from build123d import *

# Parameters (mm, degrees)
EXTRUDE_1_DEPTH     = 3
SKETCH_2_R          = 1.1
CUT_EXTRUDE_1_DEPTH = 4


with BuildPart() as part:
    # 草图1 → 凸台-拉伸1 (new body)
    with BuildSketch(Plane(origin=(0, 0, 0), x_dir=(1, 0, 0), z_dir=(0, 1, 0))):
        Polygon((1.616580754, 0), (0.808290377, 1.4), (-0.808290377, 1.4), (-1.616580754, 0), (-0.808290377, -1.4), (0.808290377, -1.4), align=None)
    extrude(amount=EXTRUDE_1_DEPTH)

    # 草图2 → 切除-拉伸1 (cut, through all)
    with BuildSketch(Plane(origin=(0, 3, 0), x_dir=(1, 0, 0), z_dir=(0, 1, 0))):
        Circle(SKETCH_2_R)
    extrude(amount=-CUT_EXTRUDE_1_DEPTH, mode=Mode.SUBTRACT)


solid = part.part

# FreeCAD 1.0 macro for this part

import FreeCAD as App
import Part
import Sketcher

V = App.Vector
Q = App.Units.Quantity


def add_polygon(sketch, points):
    """Adds a closed chain of lines whose ends are joined by coincident constraints."""
    first, n = sketch.GeometryCount, len(points)
    for a, b in zip(points, points[1:] + points[:1]):
        sketch.addGeometry(Part.LineSegment(App.Vector(*a, 0), App.Vector(*b, 0)), False)
    for i in range(n):
        sketch.addConstraint(Sketcher.Constraint("Coincident", first + i, 2, first + (i + 1) % n, 1))

doc = App.newDocument("Part")
body = doc.addObject("PartDesign::Body", "Body")

# Sketch on XZ plane
sketch1 = body.newObject("Sketcher::SketchObject", "Sketch")
sketch1.AttachmentSupport = (doc.getObject("XZ_Plane"), [""])
sketch1.MapMode = "FlatFace"
add_polygon(sketch1, [(1.6, 0), (0.8, -1.4), (-0.8, -1.4), (-1.6, 0), (-0.8, 1.4), (0.8, 1.4)])  # lines 0-5
sketch1.addConstraint([
    Sketcher.Constraint("Horizontal", 1),
    Sketcher.Constraint("Horizontal", 4),
    Sketcher.Constraint("Symmetric", 0, 2, 3, 2, -1, 1),
    Sketcher.Constraint("Symmetric", 2, 2, 5, 2, -1, 1),
    Sketcher.Constraint("PointOnObject", 2, 2, -1),
    Sketcher.Constraint("Parallel", 2, 5),
    Sketcher.Constraint("Vertical", 1, 2, 3, 2),
    Sketcher.Constraint("Angle", 0, Q("-120 deg")),
    Sketcher.Constraint("DistanceY", 0, 2, -1, 1, 1.4),
    Sketcher.Constraint("DistanceX", 1, 2, 1, 1, 1.616581),
])
pad1 = body.newObject("PartDesign::Pad", "Pad")
pad1.Profile = sketch1
pad1.Length = 3
pad1.Reversed = True

# Sketch on XZ plane
sketch2 = body.newObject("Sketcher::SketchObject", "Sketch001")
sketch2.AttachmentSupport = (doc.getObject("XZ_Plane"), [""])
sketch2.MapMode = "FlatFace"
sketch2.AttachmentOffset = App.Placement(V(0, 0, -3), App.Rotation())
sketch2.addGeometry(Part.Circle(V(0, 0, 0), V(0, 0, 1), 1.1), False)
sketch2.addConstraint([
    Sketcher.Constraint("Coincident", 0, 3, -1, 1),
    Sketcher.Constraint("Diameter", 0, 2.2),
])
pocket1 = body.newObject("PartDesign::Pocket", "Pocket")
pocket1.Profile = sketch2
pocket1.Type = "ThroughAll"
pocket1.Reversed = True

doc.recompute()
